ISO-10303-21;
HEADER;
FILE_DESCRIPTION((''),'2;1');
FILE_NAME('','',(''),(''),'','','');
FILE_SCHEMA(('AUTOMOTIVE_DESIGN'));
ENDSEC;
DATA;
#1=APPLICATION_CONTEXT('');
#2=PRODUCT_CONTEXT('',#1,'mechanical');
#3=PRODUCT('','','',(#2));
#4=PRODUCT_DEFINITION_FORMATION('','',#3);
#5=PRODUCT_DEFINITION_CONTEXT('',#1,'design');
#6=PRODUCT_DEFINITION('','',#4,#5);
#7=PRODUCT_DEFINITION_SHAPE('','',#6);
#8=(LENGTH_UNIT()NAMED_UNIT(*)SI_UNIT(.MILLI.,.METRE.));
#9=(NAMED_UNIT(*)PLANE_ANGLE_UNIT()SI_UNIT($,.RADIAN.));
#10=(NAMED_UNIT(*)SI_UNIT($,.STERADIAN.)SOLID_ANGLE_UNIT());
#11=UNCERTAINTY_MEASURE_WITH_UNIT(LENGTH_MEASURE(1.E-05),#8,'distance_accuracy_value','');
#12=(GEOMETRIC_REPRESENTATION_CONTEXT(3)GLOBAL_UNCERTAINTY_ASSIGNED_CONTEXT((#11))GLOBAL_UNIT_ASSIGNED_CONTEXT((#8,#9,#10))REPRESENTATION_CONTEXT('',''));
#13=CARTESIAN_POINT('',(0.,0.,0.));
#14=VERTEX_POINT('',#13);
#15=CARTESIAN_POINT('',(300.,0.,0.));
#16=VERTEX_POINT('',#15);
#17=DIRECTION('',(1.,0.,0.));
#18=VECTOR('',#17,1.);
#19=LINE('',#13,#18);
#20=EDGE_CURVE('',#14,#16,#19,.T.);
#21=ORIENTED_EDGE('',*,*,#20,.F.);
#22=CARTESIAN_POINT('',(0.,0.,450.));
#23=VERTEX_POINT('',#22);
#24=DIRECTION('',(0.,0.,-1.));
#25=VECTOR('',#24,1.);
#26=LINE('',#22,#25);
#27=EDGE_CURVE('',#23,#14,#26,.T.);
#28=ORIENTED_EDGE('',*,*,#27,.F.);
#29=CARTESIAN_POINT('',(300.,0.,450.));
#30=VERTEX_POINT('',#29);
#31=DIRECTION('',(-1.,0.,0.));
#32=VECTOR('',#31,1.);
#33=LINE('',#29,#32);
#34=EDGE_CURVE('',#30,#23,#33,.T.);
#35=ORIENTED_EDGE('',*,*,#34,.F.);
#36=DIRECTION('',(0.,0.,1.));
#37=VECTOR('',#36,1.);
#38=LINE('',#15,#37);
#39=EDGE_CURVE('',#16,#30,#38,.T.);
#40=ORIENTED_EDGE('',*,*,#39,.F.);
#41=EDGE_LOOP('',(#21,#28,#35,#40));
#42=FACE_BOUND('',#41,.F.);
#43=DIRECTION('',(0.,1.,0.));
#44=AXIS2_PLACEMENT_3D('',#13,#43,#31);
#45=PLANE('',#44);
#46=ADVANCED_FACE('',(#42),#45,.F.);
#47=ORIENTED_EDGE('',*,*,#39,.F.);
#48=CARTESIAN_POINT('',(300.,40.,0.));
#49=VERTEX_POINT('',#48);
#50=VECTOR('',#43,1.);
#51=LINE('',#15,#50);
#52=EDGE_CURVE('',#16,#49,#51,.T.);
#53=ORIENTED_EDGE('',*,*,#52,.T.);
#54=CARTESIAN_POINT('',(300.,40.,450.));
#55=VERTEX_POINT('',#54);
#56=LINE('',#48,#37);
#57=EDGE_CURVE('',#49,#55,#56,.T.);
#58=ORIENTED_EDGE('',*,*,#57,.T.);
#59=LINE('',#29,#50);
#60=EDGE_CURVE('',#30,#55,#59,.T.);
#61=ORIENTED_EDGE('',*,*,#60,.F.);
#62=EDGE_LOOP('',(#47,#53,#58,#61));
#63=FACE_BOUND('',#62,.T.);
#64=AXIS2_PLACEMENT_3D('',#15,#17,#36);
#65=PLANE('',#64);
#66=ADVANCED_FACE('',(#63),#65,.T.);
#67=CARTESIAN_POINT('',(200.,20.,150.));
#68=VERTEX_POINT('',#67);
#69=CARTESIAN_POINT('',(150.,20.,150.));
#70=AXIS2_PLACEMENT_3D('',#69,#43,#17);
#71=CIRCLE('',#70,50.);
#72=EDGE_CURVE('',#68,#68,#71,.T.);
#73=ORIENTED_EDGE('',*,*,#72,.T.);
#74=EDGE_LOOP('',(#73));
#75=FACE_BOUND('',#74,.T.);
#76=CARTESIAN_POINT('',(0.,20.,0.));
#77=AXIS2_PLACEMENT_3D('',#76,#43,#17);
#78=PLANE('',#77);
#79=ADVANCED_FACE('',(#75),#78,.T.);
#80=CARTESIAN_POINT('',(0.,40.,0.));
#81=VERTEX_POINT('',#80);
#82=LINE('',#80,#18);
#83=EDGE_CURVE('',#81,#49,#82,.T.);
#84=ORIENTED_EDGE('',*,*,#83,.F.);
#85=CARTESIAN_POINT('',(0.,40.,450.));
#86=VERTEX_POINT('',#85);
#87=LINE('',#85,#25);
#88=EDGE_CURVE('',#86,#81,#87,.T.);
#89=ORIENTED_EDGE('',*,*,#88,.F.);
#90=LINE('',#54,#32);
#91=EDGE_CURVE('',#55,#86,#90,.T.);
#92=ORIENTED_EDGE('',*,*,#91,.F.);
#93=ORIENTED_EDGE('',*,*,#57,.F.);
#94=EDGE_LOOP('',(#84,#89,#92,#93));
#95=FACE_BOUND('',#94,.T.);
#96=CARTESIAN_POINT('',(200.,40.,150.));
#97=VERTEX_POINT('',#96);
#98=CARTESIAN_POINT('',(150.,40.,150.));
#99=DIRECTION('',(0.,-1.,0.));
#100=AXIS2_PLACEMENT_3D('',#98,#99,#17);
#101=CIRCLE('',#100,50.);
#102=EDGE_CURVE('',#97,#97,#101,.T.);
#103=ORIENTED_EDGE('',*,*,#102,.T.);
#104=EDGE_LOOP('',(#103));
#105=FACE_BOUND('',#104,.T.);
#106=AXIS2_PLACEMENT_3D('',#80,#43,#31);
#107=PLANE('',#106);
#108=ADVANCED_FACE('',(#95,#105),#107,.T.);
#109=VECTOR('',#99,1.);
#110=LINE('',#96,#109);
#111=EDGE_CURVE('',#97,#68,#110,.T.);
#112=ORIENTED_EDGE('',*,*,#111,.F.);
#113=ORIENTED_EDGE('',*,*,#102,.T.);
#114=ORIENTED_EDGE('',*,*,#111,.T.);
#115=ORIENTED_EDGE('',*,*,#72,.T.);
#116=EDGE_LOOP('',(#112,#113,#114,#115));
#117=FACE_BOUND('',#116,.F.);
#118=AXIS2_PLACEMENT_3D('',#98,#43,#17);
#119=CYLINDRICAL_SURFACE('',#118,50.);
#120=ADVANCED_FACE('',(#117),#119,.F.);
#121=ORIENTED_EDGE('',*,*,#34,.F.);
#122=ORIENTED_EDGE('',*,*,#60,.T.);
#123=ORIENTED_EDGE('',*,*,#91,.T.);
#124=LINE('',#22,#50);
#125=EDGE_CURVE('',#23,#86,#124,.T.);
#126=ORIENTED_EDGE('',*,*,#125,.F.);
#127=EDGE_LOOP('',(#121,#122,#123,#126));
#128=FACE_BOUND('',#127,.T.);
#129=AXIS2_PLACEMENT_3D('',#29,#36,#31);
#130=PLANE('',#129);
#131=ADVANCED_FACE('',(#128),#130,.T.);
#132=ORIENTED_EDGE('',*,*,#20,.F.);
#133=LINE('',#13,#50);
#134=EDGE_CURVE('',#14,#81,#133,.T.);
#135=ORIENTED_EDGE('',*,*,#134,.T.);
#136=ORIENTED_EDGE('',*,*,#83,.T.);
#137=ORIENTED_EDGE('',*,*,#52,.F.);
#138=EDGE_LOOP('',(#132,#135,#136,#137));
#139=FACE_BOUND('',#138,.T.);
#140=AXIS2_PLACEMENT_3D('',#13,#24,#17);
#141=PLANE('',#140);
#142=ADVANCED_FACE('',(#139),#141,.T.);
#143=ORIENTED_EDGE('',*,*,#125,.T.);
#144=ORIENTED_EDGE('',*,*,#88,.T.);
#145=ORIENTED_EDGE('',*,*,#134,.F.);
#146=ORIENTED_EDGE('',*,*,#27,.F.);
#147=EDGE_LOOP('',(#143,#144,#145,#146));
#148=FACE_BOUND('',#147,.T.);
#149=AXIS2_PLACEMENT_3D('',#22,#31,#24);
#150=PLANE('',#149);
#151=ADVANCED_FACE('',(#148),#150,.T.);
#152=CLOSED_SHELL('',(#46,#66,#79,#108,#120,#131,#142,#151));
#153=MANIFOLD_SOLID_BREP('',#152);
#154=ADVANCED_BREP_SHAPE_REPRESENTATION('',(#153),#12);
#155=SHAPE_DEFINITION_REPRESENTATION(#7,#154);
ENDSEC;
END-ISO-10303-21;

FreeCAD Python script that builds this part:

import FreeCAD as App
import Part
import Sketcher
Q = App.Units.Quantity

doc = App.newDocument("Part")
params = doc.addObject("Spreadsheet::Sheet", "Params")
for row, (alias, value) in enumerate([
    ("sketch1_width", "300 mm"),
    ("sketch1_height", "450 mm"),
    ("pad1_length", "40 mm"),
    ("sketch2_diameter", "100 mm"),
    ("pocket1_length", "20 mm"),
], start=1):
    params.set(f"A{row}", alias)
    params.set(f"B{row}", "=" + value)
    params.setAlias(f"B{row}", alias)

body = doc.addObject("PartDesign::Body", "Body")

# Sketch on XZ plane
sketch1 = body.newObject("Sketcher::SketchObject", "Sketch")
sketch1.AttachmentSupport = (doc.getObject("XZ_Plane"), [""])
sketch1.MapMode = "FlatFace"
sketch1.addGeometry(Part.LineSegment(App.Vector(300, 0, 0), App.Vector(0, 0, 0)), False)
sketch1.addGeometry(Part.LineSegment(App.Vector(0, 0, 0), App.Vector(0, 450, 0)), False)
sketch1.addGeometry(Part.LineSegment(App.Vector(0, 450, 0), App.Vector(300, 450, 0)), False)
sketch1.addGeometry(Part.LineSegment(App.Vector(300, 450, 0), App.Vector(300, 0, 0)), False)
sketch1.addConstraint(Sketcher.Constraint("Coincident", 0, 2, 1, 1))
sketch1.addConstraint(Sketcher.Constraint("Coincident", 1, 2, 2, 1))
sketch1.addConstraint(Sketcher.Constraint("Coincident", 2, 2, 3, 1))
sketch1.addConstraint(Sketcher.Constraint("Coincident", 3, 2, 0, 1))
sketch1.addConstraint(Sketcher.Constraint("Horizontal", 0))
sketch1.addConstraint(Sketcher.Constraint("Vertical", 1))
sketch1.addConstraint(Sketcher.Constraint("Horizontal", 2))
sketch1.addConstraint(Sketcher.Constraint("Vertical", 3))
sketch1.addConstraint(Sketcher.Constraint("Coincident", 0, 2, -1, 1))
sketch1.addConstraint(Sketcher.Constraint("DistanceX", 0, 2, 0, 1, Q("300 mm")))
sketch1.addConstraint(Sketcher.Constraint("DistanceY", 1, 1, 1, 2, Q("450 mm")))
sketch1.setExpression("Constraints[9]", "Params.sketch1_width")
sketch1.setExpression("Constraints[10]", "Params.sketch1_height")
pad1 = body.newObject("PartDesign::Pad", "Pad")
pad1.Profile = sketch1
pad1.setExpression("Length", "Params.pad1_length")
pad1.Reversed = True

# Sketch on XZ plane
sketch2 = body.newObject("Sketcher::SketchObject", "Sketch001")
sketch2.AttachmentSupport = (doc.getObject("XZ_Plane"), [""])
sketch2.MapMode = "FlatFace"
sketch2.AttachmentOffset = App.Placement(App.Vector(0, 0, -40), App.Rotation())
sketch2.addGeometry(Part.Circle(App.Vector(150, 150, 0), App.Vector(0, 0, 1), 50), False)
sketch2.addConstraint(Sketcher.Constraint("Diameter", 0, Q("100 mm")))
sketch2.addConstraint(Sketcher.Constraint("DistanceX", -1, 1, 0, 3, Q("150 mm")))
sketch2.addConstraint(Sketcher.Constraint("DistanceY", -1, 1, 0, 3, Q("150 mm")))
sketch2.setExpression("Constraints[0]", "Params.sketch2_diameter")
pocket1 = body.newObject("PartDesign::Pocket", "Pocket")
pocket1.Profile = sketch2
pocket1.setExpression("Length", "Params.pocket1_length")
pocket1.Reversed = True

doc.recompute()
